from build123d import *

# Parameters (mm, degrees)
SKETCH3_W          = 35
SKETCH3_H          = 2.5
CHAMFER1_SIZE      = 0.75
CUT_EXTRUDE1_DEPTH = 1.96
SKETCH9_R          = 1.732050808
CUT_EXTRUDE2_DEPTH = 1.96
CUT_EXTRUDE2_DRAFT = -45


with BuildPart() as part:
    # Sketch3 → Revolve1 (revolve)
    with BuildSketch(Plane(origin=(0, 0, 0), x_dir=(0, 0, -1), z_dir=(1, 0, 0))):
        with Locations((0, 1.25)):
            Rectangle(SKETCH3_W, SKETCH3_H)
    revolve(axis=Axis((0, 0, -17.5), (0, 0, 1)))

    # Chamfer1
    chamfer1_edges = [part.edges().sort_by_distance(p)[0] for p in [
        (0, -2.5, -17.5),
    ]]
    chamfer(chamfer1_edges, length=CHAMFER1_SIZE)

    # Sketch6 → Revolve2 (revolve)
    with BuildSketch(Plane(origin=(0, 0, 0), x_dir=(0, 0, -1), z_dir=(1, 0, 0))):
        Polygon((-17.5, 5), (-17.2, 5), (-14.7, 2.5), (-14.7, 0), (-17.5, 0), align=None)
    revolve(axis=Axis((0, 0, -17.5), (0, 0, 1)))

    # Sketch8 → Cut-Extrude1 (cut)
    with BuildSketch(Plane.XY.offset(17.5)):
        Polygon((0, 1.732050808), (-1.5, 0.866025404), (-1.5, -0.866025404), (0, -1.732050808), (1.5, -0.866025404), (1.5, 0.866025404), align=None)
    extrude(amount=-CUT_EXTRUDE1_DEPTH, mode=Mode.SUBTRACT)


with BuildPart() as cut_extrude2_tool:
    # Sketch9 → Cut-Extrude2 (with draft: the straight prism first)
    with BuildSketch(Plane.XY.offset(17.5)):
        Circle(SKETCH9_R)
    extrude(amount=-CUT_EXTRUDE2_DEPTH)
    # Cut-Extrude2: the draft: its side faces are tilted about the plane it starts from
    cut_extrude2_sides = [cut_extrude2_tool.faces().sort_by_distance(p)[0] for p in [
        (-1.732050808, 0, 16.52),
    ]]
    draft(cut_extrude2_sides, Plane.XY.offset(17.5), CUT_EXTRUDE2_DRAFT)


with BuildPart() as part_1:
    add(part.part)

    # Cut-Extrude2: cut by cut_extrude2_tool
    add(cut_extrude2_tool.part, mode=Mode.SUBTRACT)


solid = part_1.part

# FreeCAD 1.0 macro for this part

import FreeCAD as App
import Part
import Sketcher
Q = App.Units.Quantity


def edges_at(feature, points):
    """Names of the edges that pass closest to the given points."""
    edges = feature.Shape.Edges
    near = lambda p: min(range(len(edges)), key=lambda i: edges[i].distToShape(Part.Vertex(*p))[0])
    return sorted({f"Edge{near(p) + 1}" for p in points})


def faces_at(feature, points):
    """Names of the faces that lie closest to the given points."""
    faces = feature.Shape.Faces
    near = lambda p: min(range(len(faces)), key=lambda i: faces[i].distToShape(Part.Vertex(*p))[0])
    return sorted({f"Face{near(p) + 1}" for p in points})


def add_polygon(sketch, points):
    """Adds a closed chain of lines whose ends are joined by coincident constraints."""
    first, n = sketch.GeometryCount, len(points)
    for a, b in zip(points, points[1:] + points[:1]):
        sketch.addGeometry(Part.LineSegment(App.Vector(*a, 0), App.Vector(*b, 0)), False)
    for i in range(n):
        sketch.addConstraint(Sketcher.Constraint("Coincident", first + i, 2, first + (i + 1) % n, 1))

doc = App.newDocument("Part")
body = doc.addObject("PartDesign::Body", "Body")

# Sketch on YZ plane
sketch1 = body.newObject("Sketcher::SketchObject", "Sketch")
sketch1.AttachmentSupport = (doc.getObject("YZ_Plane"), [""])
sketch1.MapMode = "FlatFace"
add_polygon(sketch1, [(2.5, 17.5), (0, 17.5), (0, -17.5), (2.5, -17.5)])  # lines 0-3
sketch1.addConstraint([
    Sketcher.Constraint("Horizontal", 0),
    Sketcher.Constraint("Vertical", 1),
    Sketcher.Constraint("Horizontal", 2),
    Sketcher.Constraint("Vertical", 3),
    Sketcher.Constraint("Symmetric", 0, 2, 1, 2, -1, 1),
    Sketcher.Constraint("DistanceY", 1, 2, 1, 1, 35.0),
    Sketcher.Constraint("DistanceX", 0, 2, 0, 1, 2.5),
])
revolution = body.newObject("PartDesign::Revolution", "Revolution")
revolution.Profile = sketch1
revolution.ReferenceAxis = (sketch1, ["V_Axis"])
revolution.Angle = 360
doc.recompute()

chamfer = body.newObject("PartDesign::Chamfer", "Chamfer")
chamfer.Base = (revolution, edges_at(revolution, [(0, -2.5, -17.5)]))
chamfer.Size = 0.75

# Sketch on YZ plane
sketch2 = body.newObject("Sketcher::SketchObject", "Sketch001")
sketch2.AttachmentSupport = (doc.getObject("YZ_Plane"), [""])
sketch2.MapMode = "FlatFace"
add_polygon(sketch2, [(5, 17.2), (5, 17.5), (0, 17.5), (0, 14.7), (2.5, 14.7)])  # lines 0-4
sketch2.addConstraint([
    Sketcher.Constraint("Vertical", 0),
    Sketcher.Constraint("Horizontal", 1),
    Sketcher.Constraint("Vertical", 2),
    Sketcher.Constraint("Horizontal", 3),
    Sketcher.Constraint("PointOnObject", 1, 2, -2),
    Sketcher.Constraint("DistanceX", 1, 2, 1, 1, 5.0),
    Sketcher.Constraint("Angle", 4, Q("45 deg")),
    Sketcher.Constraint("DistanceX", 3, 1, 3, 2, 2.5),
    Sketcher.Constraint("DistanceY", 0, 1, 0, 2, 0.3),
    Sketcher.Constraint("DistanceY", -1, 1, 0, 2, 17.5),
])
revolution2 = body.newObject("PartDesign::Revolution", "Revolution001")
revolution2.Profile = sketch2
revolution2.ReferenceAxis = (sketch2, ["V_Axis"])
revolution2.Angle = 360

# Sketch on XY plane
sketch3 = body.newObject("Sketcher::SketchObject", "Sketch002")
sketch3.AttachmentSupport = (doc.getObject("XY_Plane"), [""])
sketch3.MapMode = "FlatFace"
sketch3.AttachmentOffset = App.Placement(App.Vector(0, 0, 17.5), App.Rotation())
add_polygon(sketch3, [(0, 1.7), (-1.5, 0.9), (-1.5, -0.9), (0, -1.7), (1.5, -0.9), (1.5, 0.9)])  # lines 0-5
sketch3.addConstraint([
    Sketcher.Constraint("Vertical", 1),
    Sketcher.Constraint("Vertical", 4),
    Sketcher.Constraint("Symmetric", 0, 2, 3, 2, -1, 1),
    Sketcher.Constraint("Symmetric", 2, 2, 5, 2, -1, 1),
    Sketcher.Constraint("PointOnObject", 2, 2, -2),
    Sketcher.Constraint("Parallel", 2, 5),
    Sketcher.Constraint("Horizontal", 1, 2, 3, 2),
    Sketcher.Constraint("Angle", 0, Q("-150 deg")),
    Sketcher.Constraint("DistanceX", 1, 2, 3, 2, 3.0),
    Sketcher.Constraint("DistanceY", 1, 2, 1, 1, 1.732051),
])
pocket1 = body.newObject("PartDesign::Pocket", "Pocket")
pocket1.Profile = sketch3
pocket1.Length = 1.96
body2 = doc.addObject("PartDesign::Body", "Body001")

# Sketch on XY plane
sketch4 = body2.newObject("Sketcher::SketchObject", "Sketch003")
sketch4.AttachmentSupport = (doc.getObject("XY_Plane001"), [""])
sketch4.MapMode = "FlatFace"
sketch4.AttachmentOffset = App.Placement(App.Vector(0, 0, 17.5), App.Rotation())
sketch4.addGeometry(Part.Circle(App.Vector(0, 0, 0), App.Vector(0, 0, 1), 1.7), False)
sketch4.addConstraint([
    Sketcher.Constraint("Coincident", 0, 3, -1, 1),
    Sketcher.Constraint("Diameter", 0, 3.464102),
])
pad1 = body2.newObject("PartDesign::Pad", "Pad")
pad1.Profile = sketch4
pad1.Length = 1.96
pad1.Reversed = True
doc.recompute()

datumplane = body2.newObject("PartDesign::Plane", "DatumPlane")
datumplane.AttachmentSupport = (doc.getObject("XY_Plane001"), [""])
datumplane.MapMode = "FlatFace"
datumplane.AttachmentOffset = App.Placement(App.Vector(0, 0, 17.5), App.Rotation())
draft = body2.newObject("PartDesign::Draft", "Draft")
draft.Base = (pad1, faces_at(pad1, [(-1.732, 0, 16.52)]))
draft.NeutralPlane = (datumplane, [""])
draft.Angle = 45
draft.Reversed = True
doc.recompute()

boolean = body.newObject("PartDesign::Boolean", "Boolean")
boolean.Type = "Cut"
boolean.addObjects([body2])

doc.recompute()
